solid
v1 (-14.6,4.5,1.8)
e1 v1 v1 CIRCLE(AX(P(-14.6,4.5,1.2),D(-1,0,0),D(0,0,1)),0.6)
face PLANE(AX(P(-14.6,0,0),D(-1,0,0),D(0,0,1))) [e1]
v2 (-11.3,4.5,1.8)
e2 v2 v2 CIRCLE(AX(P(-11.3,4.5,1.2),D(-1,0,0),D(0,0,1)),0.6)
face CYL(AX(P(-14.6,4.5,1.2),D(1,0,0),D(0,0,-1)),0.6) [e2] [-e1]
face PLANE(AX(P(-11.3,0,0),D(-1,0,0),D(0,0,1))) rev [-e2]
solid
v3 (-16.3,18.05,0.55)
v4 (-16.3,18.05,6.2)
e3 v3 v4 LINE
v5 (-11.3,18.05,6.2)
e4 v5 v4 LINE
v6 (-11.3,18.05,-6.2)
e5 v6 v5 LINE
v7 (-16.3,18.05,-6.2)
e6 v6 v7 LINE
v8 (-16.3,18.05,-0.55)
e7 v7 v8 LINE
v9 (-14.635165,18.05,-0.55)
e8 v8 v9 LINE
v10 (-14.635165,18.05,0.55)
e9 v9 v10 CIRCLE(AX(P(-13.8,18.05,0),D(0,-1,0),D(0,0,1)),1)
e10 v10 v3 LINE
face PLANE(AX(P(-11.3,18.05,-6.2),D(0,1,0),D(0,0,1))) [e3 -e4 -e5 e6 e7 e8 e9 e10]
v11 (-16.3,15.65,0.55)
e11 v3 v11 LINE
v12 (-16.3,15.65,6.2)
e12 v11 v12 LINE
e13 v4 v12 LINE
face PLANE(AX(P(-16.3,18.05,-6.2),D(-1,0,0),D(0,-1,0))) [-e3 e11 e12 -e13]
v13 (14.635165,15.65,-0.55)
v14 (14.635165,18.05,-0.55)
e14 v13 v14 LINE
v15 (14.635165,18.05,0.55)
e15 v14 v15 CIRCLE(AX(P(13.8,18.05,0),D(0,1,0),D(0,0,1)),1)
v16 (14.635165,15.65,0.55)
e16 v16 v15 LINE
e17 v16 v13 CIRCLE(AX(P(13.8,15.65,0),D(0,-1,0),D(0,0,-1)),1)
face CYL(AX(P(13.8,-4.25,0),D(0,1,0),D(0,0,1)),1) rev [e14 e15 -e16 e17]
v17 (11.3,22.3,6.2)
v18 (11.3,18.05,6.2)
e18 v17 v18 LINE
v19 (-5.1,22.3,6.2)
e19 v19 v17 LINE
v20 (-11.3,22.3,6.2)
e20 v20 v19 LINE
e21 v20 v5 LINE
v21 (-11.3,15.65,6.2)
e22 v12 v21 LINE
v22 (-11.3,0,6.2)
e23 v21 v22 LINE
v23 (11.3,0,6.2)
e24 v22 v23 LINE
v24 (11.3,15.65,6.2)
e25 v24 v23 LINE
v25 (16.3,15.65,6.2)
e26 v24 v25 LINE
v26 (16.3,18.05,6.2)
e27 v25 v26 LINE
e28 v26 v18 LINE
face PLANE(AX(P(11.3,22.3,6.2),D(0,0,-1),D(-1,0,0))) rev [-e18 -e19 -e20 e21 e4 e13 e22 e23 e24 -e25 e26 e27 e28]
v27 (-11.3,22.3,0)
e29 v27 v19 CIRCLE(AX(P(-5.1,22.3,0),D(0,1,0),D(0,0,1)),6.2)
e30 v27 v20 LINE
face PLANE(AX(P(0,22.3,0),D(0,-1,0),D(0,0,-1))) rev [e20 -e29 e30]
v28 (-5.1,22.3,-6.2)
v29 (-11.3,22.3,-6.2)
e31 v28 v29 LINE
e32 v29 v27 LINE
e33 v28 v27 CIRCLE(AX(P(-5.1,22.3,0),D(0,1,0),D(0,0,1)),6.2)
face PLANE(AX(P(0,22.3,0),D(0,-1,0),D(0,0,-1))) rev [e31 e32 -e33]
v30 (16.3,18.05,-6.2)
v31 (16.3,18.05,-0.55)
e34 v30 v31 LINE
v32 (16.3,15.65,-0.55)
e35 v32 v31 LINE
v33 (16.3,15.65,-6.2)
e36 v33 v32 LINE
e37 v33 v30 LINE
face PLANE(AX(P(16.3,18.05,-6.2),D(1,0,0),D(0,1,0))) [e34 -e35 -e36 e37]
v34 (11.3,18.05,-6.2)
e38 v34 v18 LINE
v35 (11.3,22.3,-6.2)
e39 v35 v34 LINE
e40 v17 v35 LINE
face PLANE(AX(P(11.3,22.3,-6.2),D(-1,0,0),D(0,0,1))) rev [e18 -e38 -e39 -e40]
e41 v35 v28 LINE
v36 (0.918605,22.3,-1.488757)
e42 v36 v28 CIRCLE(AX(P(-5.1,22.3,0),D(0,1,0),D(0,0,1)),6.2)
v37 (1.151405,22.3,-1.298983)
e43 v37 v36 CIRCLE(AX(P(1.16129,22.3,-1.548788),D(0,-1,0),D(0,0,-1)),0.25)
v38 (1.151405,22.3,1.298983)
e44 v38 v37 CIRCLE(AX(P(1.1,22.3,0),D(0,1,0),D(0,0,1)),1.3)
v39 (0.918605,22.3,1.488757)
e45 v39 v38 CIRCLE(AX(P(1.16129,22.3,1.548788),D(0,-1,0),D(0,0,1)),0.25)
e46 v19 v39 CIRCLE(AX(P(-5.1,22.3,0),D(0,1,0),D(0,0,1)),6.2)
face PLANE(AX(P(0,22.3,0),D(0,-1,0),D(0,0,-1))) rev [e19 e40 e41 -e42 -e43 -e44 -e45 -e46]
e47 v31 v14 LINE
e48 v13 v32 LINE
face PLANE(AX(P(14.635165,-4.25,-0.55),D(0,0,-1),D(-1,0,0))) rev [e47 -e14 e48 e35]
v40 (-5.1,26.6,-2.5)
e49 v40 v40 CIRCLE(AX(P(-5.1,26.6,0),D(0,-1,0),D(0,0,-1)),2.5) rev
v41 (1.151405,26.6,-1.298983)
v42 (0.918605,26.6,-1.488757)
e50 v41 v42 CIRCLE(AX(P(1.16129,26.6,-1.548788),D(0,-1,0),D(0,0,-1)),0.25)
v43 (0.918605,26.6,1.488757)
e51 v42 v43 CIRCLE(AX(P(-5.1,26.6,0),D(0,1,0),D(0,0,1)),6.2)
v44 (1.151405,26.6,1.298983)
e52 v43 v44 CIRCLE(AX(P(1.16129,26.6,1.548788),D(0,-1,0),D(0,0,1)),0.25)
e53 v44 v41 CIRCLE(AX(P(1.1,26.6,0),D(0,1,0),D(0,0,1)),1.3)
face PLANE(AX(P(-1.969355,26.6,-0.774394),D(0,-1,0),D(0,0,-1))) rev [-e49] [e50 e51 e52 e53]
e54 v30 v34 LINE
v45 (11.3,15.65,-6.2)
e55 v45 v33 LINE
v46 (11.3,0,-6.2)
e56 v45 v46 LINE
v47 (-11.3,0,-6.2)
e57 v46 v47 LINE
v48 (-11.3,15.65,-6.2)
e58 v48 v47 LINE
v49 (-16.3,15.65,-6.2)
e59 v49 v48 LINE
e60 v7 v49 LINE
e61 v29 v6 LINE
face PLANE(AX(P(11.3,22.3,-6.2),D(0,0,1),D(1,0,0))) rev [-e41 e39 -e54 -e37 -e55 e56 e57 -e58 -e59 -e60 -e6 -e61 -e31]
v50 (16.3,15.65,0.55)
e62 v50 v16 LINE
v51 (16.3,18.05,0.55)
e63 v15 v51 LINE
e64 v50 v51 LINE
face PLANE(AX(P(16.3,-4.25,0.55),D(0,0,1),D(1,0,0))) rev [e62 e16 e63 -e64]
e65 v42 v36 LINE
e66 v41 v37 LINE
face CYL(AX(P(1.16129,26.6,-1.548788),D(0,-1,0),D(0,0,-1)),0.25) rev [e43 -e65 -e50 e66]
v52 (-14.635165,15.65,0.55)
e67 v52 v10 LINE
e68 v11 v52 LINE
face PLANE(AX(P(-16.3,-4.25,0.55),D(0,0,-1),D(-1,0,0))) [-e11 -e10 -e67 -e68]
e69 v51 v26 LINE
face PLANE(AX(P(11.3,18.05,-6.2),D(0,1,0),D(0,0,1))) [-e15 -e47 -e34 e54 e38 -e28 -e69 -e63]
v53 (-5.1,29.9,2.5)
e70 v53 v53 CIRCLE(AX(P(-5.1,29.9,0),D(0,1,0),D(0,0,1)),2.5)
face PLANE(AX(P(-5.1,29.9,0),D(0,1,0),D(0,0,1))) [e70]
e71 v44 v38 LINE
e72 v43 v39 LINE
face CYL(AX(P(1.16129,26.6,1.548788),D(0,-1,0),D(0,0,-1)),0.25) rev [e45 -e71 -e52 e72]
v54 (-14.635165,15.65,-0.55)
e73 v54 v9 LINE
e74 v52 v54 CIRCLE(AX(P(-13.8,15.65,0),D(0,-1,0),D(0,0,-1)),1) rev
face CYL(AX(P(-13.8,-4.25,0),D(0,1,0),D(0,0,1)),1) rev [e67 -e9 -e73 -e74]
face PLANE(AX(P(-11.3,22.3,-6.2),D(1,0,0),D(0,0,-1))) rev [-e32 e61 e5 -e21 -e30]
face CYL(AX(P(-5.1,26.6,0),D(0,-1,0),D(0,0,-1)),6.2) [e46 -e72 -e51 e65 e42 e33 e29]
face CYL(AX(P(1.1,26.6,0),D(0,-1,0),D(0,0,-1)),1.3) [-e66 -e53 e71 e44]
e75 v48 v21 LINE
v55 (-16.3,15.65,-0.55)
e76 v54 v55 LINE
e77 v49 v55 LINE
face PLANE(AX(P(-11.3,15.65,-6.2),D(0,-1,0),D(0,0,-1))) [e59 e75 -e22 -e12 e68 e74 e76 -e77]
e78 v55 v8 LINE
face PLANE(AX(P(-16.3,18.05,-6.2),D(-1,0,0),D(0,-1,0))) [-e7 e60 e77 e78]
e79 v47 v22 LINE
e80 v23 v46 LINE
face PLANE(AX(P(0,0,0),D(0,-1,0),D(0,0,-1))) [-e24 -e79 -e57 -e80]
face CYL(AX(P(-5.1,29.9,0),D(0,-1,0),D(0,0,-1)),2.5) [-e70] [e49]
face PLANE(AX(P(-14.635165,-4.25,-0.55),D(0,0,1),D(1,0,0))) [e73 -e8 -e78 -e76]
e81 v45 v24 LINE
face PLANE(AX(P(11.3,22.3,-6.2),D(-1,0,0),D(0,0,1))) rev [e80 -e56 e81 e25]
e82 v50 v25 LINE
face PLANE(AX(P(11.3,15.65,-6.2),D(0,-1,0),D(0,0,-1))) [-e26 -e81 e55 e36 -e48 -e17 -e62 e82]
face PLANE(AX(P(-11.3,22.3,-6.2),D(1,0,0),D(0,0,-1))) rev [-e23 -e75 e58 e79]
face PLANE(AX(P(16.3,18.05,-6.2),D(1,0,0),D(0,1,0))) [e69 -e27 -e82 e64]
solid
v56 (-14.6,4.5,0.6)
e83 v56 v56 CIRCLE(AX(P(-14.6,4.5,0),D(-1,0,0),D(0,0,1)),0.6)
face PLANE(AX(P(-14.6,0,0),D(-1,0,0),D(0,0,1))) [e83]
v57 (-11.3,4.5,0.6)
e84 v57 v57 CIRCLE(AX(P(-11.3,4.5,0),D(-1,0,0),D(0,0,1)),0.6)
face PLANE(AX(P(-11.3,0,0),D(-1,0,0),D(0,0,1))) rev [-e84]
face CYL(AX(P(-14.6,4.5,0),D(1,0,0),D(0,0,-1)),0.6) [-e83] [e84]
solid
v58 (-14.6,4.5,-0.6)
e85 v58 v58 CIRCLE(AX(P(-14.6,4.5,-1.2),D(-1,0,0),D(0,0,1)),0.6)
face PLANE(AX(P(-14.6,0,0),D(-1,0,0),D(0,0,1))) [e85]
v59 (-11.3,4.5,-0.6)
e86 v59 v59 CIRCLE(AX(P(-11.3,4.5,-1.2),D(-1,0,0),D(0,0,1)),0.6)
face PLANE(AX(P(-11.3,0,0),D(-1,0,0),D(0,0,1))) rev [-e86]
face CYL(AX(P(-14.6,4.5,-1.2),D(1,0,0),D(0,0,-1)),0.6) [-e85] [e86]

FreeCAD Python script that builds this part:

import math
import FreeCAD as App
import Part
import Sketcher


def add_polygon(sketch, points):
    """Adds a closed chain of lines whose ends are joined by coincident constraints."""
    first, n = sketch.GeometryCount, len(points)
    for a, b in zip(points, points[1:] + points[:1]):
        sketch.addGeometry(Part.LineSegment(App.Vector(*a, 0), App.Vector(*b, 0)), False)
    for i in range(n):
        sketch.addConstraint(Sketcher.Constraint("Coincident", first + i, 2, first + (i + 1) % n, 1))

doc = App.newDocument("Part")
body = doc.addObject("PartDesign::Body", "Body")

# Sketch on XZ plane
sketch1 = body.newObject("Sketcher::SketchObject", "Sketch")
sketch1.AttachmentSupport = (doc.getObject("XZ_Plane"), [""])
sketch1.MapMode = "FlatFace"
add_polygon(sketch1, [(-11, -6), (-11, 6), (11, 6), (11, -6)])  # lines 0-3
sketch1.addConstraint([
    Sketcher.Constraint("Vertical", 0),
    Sketcher.Constraint("Horizontal", 1),
    Sketcher.Constraint("Vertical", 2),
    Sketcher.Constraint("Horizontal", 3),
    Sketcher.Constraint("Symmetric", 0, 2, 2, 2, -1, 1),
    Sketcher.Constraint("DistanceX", 1, 1, 1, 2, 22.6),
    Sketcher.Constraint("DistanceY", 0, 1, 0, 2, 12.4),
])
pad1 = body.newObject("PartDesign::Pad", "Pad")
pad1.Profile = sketch1
pad1.Length = 22.3
pad1.Reversed = True

# Sketch on XY plane
sketch2 = body.newObject("Sketcher::SketchObject", "Sketch001")
sketch2.AttachmentSupport = (doc.getObject("XY_Plane"), [""])
sketch2.MapMode = "FlatFace"
sketch2.AttachmentOffset = App.Placement(App.Vector(0, 0, 6.2), App.Rotation())
add_polygon(sketch2, [(11.3, 18.1), (11.3, 15.7), (16.3, 15.7), (16.3, 18.1)])  # lines 0-3
add_polygon(sketch2, [(-16.3, 18.1), (-16.3, 15.7), (-11.3, 15.7), (-11.3, 18.1)])  # lines 4-7
sketch2.addConstraint([
    Sketcher.Constraint("Vertical", 0),
    Sketcher.Constraint("Horizontal", 1),
    Sketcher.Constraint("Vertical", 2),
    Sketcher.Constraint("Horizontal", 3),
    Sketcher.Constraint("Vertical", 4),
    Sketcher.Constraint("Horizontal", 5),
    Sketcher.Constraint("Vertical", 6),
    Sketcher.Constraint("Horizontal", 7),
    Sketcher.Constraint("Symmetric", 1, 2, 4, 2, -2),
    Sketcher.Constraint("Symmetric", 3, 2, 6, 2, -2),
    Sketcher.Constraint("DistanceX", 1, 1, 1, 2, 5.0),
    Sketcher.Constraint("DistanceY", 0, 2, 0, 1, 2.4),
    Sketcher.Constraint("DistanceX", -1, 1, 0, 2, 11.3),
    Sketcher.Constraint("DistanceY", -1, 1, 0, 2, 15.65),
])
pad2 = body.newObject("PartDesign::Pad", "Pad001")
pad2.Profile = sketch2
pad2.Length = 12.4
pad2.Reversed = True

# Sketch on XZ plane
sketch3 = body.newObject("Sketcher::SketchObject", "Sketch002")
sketch3.AttachmentSupport = (doc.getObject("XZ_Plane"), [""])
sketch3.MapMode = "FlatFace"
sketch3.AttachmentOffset = App.Placement(App.Vector(0, 0, -18.05), App.Rotation())
sketch3.addGeometry([
    Part.LineSegment(App.Vector(16.3, -0.6, 0), App.Vector(14.6, -0.6, 0)),
    Part.ArcOfCircle(Part.Circle(App.Vector(13.8, 0, 0), App.Vector(0, 0, 1), 1), math.radians(33), math.radians(327)),
    Part.LineSegment(App.Vector(14.6, 0.6, 0), App.Vector(16.3, 0.6, 0)),
    Part.LineSegment(App.Vector(16.3, 0.6, 0), App.Vector(16.3, -0.6, 0)),
], False)
sketch3.addConstraint([
    Sketcher.Constraint("Coincident", 0, 2, 1, 2),
    Sketcher.Constraint("Coincident", 1, 1, 2, 1),
    Sketcher.Constraint("Coincident", 2, 2, 3, 1),
    Sketcher.Constraint("Coincident", 3, 2, 0, 1),
    Sketcher.Constraint("Horizontal", 0),
    Sketcher.Constraint("Horizontal", 2),
    Sketcher.Constraint("Vertical", 3),
    Sketcher.Constraint("Symmetric", 0, 2, 1, 1, -1),
    Sketcher.Constraint("Radius", 1, 1.0),
    Sketcher.Constraint("DistanceY", 3, 2, 3, 1, 1.1),
    Sketcher.Constraint("DistanceX", -1, 1, 1, 3, 13.8),
    Sketcher.Constraint("DistanceX", -1, 1, 2, 2, 16.3),
])
pocket1 = body.newObject("PartDesign::Pocket", "Pocket")
pocket1.Profile = sketch3
pocket1.Length = 22.3
pocket1.Reversed = True
doc.recompute()

mirrored = body.newObject("PartDesign::Mirrored", "Mirrored")
mirrored.Originals = [pocket1]
mirrored.MirrorPlane = (doc.getObject("YZ_Plane"), [""])
body.Tip = mirrored

# Sketch on XZ plane
sketch4 = body.newObject("Sketcher::SketchObject", "Sketch003")
sketch4.AttachmentSupport = (doc.getObject("XZ_Plane"), [""])
sketch4.MapMode = "FlatFace"
sketch4.AttachmentOffset = App.Placement(App.Vector(0, 0, -22.3), App.Rotation())
sketch4.addGeometry([
    Part.ArcOfCircle(Part.Circle(App.Vector(-5.1, 0, 0), App.Vector(0, 0, 1), 6.2), math.radians(14), math.radians(346)),
    Part.ArcOfCircle(Part.Circle(App.Vector(1.16, 1.55, 0), App.Vector(0, 0, 1), 0.25), math.radians(-166), math.radians(-92)),
    Part.ArcOfCircle(Part.Circle(App.Vector(1.1, 0, 0), App.Vector(0, 0, 1), 1.3), math.radians(-88), math.radians(88)),
    Part.ArcOfCircle(Part.Circle(App.Vector(1.16, -1.55, 0), App.Vector(0, 0, 1), 0.25), math.radians(92), math.radians(166)),
], False)
sketch4.addConstraint([
    Sketcher.Constraint("Tangent", 0, 1, 1, 1),
    Sketcher.Constraint("Tangent", 1, 2, 2, 2),
    Sketcher.Constraint("Tangent", 2, 1, 3, 1),
    Sketcher.Constraint("Tangent", 3, 2, 0, 2),
    Sketcher.Constraint("Equal", 1, 3),
    Sketcher.Constraint("Symmetric", 1, 3, 3, 3, -1),
    Sketcher.Constraint("Radius", 0, 6.2),
    Sketcher.Constraint("Radius", 2, 1.3),
    Sketcher.Constraint("Radius", 1, 0.25),
    Sketcher.Constraint("DistanceX", 0, 3, -1, 1, 5.1),
    Sketcher.Constraint("DistanceX", -1, 1, 2, 3, 1.1),
])
pad3 = body.newObject("PartDesign::Pad", "Pad002")
pad3.Profile = sketch4
pad3.Length = 4.3
pad3.Reversed = True

# Sketch on XZ plane
sketch5 = body.newObject("Sketcher::SketchObject", "Sketch004")
sketch5.AttachmentSupport = (doc.getObject("XZ_Plane"), [""])
sketch5.MapMode = "FlatFace"
sketch5.AttachmentOffset = App.Placement(App.Vector(0, 0, -26.6), App.Rotation())
sketch5.addGeometry(Part.Circle(App.Vector(-5.1, 0, 0), App.Vector(0, 0, 1), 2.5), False)
sketch5.addConstraint([
    Sketcher.Constraint("PointOnObject", 0, 3, -1),
    Sketcher.Constraint("Diameter", 0, 5.0),
    Sketcher.Constraint("DistanceX", 0, 3, -1, 1, 5.1),
])
pad4 = body.newObject("PartDesign::Pad", "Pad003")
pad4.Profile = sketch5
pad4.Length = 3.3
pad4.Reversed = True
body2 = doc.addObject("PartDesign::Body", "Body001")

# Sketch on YZ plane
sketch6 = body2.newObject("Sketcher::SketchObject", "Sketch005")
sketch6.AttachmentSupport = (doc.getObject("YZ_Plane001"), [""])
sketch6.MapMode = "FlatFace"
sketch6.AttachmentOffset = App.Placement(App.Vector(0, 0, -11.3), App.Rotation())
sketch6.addGeometry(Part.Circle(App.Vector(4.5, -1.2, 0), App.Vector(0, 0, 1), 0.6), False)
sketch6.addConstraint([
    Sketcher.Constraint("Diameter", 0, 1.2),
    Sketcher.Constraint("DistanceX", -1, 1, 0, 3, 4.5),
    Sketcher.Constraint("DistanceY", 0, 3, -1, 1, 1.2),
])
pad5 = body2.newObject("PartDesign::Pad", "Pad004")
pad5.Profile = sketch6
pad5.Length = 3.3
pad5.Reversed = True
body3 = doc.addObject("PartDesign::Body", "Body002")

# Sketch on YZ plane
sketch7 = body3.newObject("Sketcher::SketchObject", "Sketch006")
sketch7.AttachmentSupport = (doc.getObject("YZ_Plane002"), [""])
sketch7.MapMode = "FlatFace"
sketch7.AttachmentOffset = App.Placement(App.Vector(0, 0, -11.3), App.Rotation())
sketch7.addGeometry(Part.Circle(App.Vector(4.5, 0, 0), App.Vector(0, 0, 1), 0.6), False)
sketch7.addConstraint([
    Sketcher.Constraint("PointOnObject", 0, 3, -1),
    Sketcher.Constraint("Diameter", 0, 1.2),
    Sketcher.Constraint("DistanceX", -1, 1, 0, 3, 4.5),
])
pad6 = body3.newObject("PartDesign::Pad", "Pad005")
pad6.Profile = sketch7
pad6.Length = 3.3
pad6.Reversed = True
body4 = doc.addObject("PartDesign::Body", "Body003")

# Sketch on YZ plane
sketch8 = body4.newObject("Sketcher::SketchObject", "Sketch007")
sketch8.AttachmentSupport = (doc.getObject("YZ_Plane003"), [""])
sketch8.MapMode = "FlatFace"
sketch8.AttachmentOffset = App.Placement(App.Vector(0, 0, -11.3), App.Rotation())
sketch8.addGeometry(Part.Circle(App.Vector(4.5, 1.2, 0), App.Vector(0, 0, 1), 0.6), False)
sketch8.addConstraint([
    Sketcher.Constraint("Diameter", 0, 1.2),
    Sketcher.Constraint("DistanceX", -1, 1, 0, 3, 4.5),
    Sketcher.Constraint("DistanceY", -1, 1, 0, 3, 1.2),
])
pad7 = body4.newObject("PartDesign::Pad", "Pad006")
pad7.Profile = sketch8
pad7.Length = 3.3
pad7.Reversed = True

doc.recompute()
